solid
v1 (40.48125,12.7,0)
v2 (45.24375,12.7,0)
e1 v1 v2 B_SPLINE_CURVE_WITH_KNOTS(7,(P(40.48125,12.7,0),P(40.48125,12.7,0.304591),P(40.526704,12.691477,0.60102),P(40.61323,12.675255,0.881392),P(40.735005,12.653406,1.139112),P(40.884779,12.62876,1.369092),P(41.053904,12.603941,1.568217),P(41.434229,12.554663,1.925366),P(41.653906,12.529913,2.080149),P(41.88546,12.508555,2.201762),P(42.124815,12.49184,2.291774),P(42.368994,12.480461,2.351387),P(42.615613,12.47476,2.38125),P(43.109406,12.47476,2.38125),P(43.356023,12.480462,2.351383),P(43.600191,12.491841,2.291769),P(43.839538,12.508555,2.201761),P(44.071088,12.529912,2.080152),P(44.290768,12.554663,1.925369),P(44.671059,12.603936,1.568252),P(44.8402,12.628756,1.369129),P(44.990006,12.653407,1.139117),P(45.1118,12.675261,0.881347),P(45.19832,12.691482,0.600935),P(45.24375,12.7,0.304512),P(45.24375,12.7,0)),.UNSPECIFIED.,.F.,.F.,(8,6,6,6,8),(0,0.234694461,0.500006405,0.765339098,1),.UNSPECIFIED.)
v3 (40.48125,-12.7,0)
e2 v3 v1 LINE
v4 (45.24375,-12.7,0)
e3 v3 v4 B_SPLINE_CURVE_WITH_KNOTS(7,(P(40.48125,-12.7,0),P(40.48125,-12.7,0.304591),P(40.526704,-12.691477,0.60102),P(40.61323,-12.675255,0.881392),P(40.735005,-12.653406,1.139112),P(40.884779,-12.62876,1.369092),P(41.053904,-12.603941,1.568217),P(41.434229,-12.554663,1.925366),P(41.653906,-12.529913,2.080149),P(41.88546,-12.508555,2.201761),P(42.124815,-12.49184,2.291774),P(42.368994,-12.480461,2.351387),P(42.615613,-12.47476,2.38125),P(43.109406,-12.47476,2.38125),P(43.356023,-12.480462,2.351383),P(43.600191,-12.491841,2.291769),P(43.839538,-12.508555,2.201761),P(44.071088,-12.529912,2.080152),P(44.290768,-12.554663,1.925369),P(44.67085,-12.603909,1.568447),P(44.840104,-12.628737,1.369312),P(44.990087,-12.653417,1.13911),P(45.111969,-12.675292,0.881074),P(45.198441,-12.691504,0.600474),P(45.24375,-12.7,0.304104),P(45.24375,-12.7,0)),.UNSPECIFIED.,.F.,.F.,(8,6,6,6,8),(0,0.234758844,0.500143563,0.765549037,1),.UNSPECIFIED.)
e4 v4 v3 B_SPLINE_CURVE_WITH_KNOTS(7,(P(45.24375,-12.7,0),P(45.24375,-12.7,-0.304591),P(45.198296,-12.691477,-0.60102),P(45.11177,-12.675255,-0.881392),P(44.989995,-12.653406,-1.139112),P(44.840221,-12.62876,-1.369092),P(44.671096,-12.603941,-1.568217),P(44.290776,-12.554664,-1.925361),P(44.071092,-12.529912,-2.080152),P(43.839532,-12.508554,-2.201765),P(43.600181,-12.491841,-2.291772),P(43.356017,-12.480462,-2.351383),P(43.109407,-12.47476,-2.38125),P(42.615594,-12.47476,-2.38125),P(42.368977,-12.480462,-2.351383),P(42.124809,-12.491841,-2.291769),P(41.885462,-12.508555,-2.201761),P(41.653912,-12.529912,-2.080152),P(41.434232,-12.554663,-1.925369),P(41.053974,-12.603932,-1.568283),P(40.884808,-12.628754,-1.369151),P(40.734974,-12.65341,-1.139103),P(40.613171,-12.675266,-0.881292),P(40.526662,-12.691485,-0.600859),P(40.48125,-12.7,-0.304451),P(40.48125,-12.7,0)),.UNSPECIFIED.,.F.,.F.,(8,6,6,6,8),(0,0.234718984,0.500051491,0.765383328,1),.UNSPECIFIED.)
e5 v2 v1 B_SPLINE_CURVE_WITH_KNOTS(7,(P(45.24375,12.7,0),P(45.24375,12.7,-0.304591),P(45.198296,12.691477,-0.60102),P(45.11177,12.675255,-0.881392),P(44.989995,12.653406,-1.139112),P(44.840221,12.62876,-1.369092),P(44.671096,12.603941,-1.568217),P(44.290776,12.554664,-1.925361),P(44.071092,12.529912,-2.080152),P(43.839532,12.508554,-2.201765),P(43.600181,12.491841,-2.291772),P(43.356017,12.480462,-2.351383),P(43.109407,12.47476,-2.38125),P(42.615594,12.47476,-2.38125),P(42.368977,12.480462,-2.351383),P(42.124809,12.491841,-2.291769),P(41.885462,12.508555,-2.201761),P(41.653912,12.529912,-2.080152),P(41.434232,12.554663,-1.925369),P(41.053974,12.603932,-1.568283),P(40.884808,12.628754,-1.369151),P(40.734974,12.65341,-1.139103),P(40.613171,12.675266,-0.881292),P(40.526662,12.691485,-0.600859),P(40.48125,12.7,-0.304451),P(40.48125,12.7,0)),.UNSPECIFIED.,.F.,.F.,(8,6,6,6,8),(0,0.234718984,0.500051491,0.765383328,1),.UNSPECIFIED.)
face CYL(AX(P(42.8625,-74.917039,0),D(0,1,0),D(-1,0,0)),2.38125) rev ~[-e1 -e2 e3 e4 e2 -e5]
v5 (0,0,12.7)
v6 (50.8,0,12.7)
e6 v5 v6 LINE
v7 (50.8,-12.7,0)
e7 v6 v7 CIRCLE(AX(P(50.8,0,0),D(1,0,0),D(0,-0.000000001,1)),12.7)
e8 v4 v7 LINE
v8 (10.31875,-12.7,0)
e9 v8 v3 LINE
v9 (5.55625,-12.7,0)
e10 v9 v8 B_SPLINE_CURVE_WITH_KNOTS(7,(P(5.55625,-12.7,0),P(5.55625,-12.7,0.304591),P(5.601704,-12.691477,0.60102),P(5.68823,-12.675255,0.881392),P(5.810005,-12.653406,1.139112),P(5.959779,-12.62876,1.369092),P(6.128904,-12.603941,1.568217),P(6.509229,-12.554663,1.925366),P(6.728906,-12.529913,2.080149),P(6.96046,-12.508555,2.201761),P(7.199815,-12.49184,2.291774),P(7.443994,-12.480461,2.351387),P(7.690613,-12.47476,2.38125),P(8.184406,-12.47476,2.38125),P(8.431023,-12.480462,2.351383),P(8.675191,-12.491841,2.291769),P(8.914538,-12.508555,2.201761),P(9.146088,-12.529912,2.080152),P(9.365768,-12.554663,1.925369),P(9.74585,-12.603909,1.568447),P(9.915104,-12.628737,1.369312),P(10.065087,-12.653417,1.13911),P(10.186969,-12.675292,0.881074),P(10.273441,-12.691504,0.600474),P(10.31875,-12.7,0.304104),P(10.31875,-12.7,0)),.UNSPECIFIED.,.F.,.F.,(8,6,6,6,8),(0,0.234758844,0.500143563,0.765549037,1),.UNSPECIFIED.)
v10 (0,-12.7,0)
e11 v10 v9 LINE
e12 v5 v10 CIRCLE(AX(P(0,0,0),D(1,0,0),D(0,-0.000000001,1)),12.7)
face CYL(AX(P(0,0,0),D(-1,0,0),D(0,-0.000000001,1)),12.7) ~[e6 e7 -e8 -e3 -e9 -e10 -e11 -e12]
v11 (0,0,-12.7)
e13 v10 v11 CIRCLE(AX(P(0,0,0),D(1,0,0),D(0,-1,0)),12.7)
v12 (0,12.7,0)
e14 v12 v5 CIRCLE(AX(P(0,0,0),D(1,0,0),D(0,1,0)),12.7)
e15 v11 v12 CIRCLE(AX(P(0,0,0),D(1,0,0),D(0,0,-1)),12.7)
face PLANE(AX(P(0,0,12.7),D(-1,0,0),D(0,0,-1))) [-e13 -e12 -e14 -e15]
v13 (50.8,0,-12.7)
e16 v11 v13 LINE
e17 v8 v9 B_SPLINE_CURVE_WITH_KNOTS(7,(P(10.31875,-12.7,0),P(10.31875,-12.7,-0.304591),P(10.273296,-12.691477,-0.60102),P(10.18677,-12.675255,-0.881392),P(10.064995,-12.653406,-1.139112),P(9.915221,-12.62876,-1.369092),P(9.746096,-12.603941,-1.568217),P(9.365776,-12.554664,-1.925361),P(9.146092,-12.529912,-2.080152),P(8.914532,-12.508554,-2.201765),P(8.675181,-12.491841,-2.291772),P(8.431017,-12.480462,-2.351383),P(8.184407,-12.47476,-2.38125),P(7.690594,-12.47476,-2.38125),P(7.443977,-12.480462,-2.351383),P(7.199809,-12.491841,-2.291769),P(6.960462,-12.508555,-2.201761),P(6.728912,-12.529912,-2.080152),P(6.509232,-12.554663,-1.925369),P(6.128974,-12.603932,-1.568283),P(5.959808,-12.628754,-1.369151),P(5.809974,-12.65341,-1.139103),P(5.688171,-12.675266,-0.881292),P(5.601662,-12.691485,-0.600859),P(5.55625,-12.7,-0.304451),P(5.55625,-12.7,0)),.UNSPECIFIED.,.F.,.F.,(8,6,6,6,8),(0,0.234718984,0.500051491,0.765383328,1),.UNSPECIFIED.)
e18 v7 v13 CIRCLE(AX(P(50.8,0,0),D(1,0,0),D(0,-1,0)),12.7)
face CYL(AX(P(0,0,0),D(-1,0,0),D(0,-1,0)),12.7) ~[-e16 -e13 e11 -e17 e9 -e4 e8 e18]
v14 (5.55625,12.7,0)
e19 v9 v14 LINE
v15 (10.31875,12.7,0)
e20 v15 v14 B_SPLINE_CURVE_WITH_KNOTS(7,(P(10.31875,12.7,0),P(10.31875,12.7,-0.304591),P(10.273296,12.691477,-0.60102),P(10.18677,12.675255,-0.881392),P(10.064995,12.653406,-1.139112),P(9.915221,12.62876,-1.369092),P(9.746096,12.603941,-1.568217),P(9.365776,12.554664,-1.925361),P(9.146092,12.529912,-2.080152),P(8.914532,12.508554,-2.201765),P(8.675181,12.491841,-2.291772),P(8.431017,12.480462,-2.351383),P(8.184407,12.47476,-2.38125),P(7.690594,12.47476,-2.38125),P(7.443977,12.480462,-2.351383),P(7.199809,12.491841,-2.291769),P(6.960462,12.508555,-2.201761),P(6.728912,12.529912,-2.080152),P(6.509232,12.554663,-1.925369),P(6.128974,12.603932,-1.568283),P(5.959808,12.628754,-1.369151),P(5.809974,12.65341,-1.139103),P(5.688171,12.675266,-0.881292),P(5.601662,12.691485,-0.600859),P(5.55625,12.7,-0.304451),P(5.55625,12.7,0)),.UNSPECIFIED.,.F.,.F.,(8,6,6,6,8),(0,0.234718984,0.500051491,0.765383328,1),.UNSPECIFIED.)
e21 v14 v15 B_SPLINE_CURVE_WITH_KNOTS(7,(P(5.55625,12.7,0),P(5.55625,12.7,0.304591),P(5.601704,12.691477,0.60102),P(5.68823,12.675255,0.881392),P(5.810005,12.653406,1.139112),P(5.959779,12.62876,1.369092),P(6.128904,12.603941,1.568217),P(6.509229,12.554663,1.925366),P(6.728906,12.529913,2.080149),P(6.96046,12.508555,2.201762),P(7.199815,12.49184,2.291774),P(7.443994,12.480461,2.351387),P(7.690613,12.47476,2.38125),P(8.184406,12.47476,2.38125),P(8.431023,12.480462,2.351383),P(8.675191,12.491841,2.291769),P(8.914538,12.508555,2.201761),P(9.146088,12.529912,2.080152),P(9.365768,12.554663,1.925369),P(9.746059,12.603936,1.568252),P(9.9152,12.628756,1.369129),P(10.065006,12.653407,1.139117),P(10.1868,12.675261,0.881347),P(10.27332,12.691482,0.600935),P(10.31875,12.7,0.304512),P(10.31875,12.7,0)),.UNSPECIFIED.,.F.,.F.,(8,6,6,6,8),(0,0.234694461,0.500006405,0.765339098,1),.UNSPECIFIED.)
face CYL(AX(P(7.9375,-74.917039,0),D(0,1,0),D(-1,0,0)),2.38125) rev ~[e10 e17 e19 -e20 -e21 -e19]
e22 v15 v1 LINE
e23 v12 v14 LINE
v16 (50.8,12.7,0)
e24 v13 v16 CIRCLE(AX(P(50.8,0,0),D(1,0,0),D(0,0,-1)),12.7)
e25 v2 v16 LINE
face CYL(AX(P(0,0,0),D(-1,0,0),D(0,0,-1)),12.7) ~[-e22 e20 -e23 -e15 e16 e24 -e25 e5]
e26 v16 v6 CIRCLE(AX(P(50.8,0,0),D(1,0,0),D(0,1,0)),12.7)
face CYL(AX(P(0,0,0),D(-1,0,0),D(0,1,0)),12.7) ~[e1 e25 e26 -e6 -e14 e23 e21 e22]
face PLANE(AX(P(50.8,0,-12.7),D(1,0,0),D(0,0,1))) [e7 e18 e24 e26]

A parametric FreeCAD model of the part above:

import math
import FreeCAD as App
import Part
import Sketcher

V = App.Vector
Q = App.Units.Quantity


def add_polygon(sketch, points):
    """Adds a closed chain of lines whose ends are joined by coincident constraints."""
    first, n = sketch.GeometryCount, len(points)
    for a, b in zip(points, points[1:] + points[:1]):
        sketch.addGeometry(Part.LineSegment(App.Vector(*a, 0), App.Vector(*b, 0)), False)
    for i in range(n):
        sketch.addConstraint(Sketcher.Constraint("Coincident", first + i, 2, first + (i + 1) % n, 1))

doc = App.newDocument("Part")
body = doc.addObject("PartDesign::Body", "Body")

# Sketch on XZ plane
sketch1 = body.newObject("Sketcher::SketchObject", "Sketch")
sketch1.AttachmentSupport = (doc.getObject("XZ_Plane"), [""])
sketch1.MapMode = "FlatFace"
add_polygon(sketch1, [(0, -13), (51, -13), (51, 13), (0, 13)])  # lines 0-3
sketch1.addConstraint(Sketcher.Constraint("Horizontal", 0))
sketch1.addConstraint(Sketcher.Constraint("Vertical", 1))
sketch1.addConstraint(Sketcher.Constraint("Horizontal", 2))
sketch1.addConstraint(Sketcher.Constraint("Vertical", 3))
sketch1.addConstraint(Sketcher.Constraint("Symmetric", 2, 2, 3, 2, -1, 1))
sketch1.addConstraint(Sketcher.Constraint("DistanceX", 0, 1, 0, 2, Q("2 in")))
sketch1.addConstraint(Sketcher.Constraint("DistanceY", 1, 1, 1, 2, Q("1 in")))
pad1 = body.newObject("PartDesign::Pad", "Pad")
pad1.Profile = sketch1
pad1.Length = Q("1 in")
pad1.Midplane = True

# Sketch on XZ plane
sketch2 = body.newObject("Sketcher::SketchObject", "Sketch001")
sketch2.AttachmentSupport = (doc.getObject("XZ_Plane"), [""])
sketch2.MapMode = "FlatFace"
sketch2.AttachmentOffset = App.Placement(V(0, 0, 0.5 * 25.4), App.Rotation())
sketch2.addGeometry(Part.Circle(V(7.9, 0, 0), V(0, 0, 1), 2.4), False)
sketch2.addGeometry(Part.Circle(V(42.9, 0, 0), V(0, 0, 1), 2.4), False)
sketch2.addConstraint(Sketcher.Constraint("Equal", 0, 1))
sketch2.addConstraint(Sketcher.Constraint("PointOnObject", 0, 3, -1))
sketch2.addConstraint(Sketcher.Constraint("PointOnObject", 1, 3, -1))
sketch2.addConstraint(Sketcher.Constraint("Diameter", 0, Q("0.1875 in")))
sketch2.addConstraint(Sketcher.Constraint("DistanceX", -1, 1, 0, 3, Q("0.3125 in")))
sketch2.addConstraint(Sketcher.Constraint("DistanceX", -1, 1, 1, 3, Q("1.6875 in")))
doc.recompute()
hole = body.newObject("PartDesign::Hole", "Hole")
hole.Profile = sketch2
hole.ThreadType = "None"
hole.Diameter = Q("0.1875 in")
hole.DepthType = "ThroughAll"

# Sketch on YZ plane
sketch3 = body.newObject("Sketcher::SketchObject", "Sketch002")
sketch3.AttachmentSupport = (doc.getObject("YZ_Plane"), [""])
sketch3.MapMode = "FlatFace"
sketch3.addGeometry(Part.LineSegment(V(-13, -13, 0), V(-13, 0, 0)), False)
sketch3.addGeometry(Part.ArcOfCircle(Part.Circle(V(0, 0, 0), V(0, 0, 1), 13), math.radians(180), math.radians(270)), False)
sketch3.addGeometry(Part.LineSegment(V(0, -13, 0), V(-13, -13, 0)), False)
sketch3.addGeometry(Part.LineSegment(V(13, -13, 0), V(0, -13, 0)), False)
sketch3.addGeometry(Part.ArcOfCircle(Part.Circle(V(0, 0, 0), V(0, 0, 1), 13), math.radians(-90), math.radians(0)), False)
sketch3.addGeometry(Part.LineSegment(V(13, 0, 0), V(13, -13, 0)), False)
sketch3.addGeometry(Part.ArcOfCircle(Part.Circle(V(0, 0, 0), V(0, 0, 1), 13), math.radians(0), math.radians(90)), False)
sketch3.addGeometry(Part.LineSegment(V(0, 13, 0), V(13, 13, 0)), False)
sketch3.addGeometry(Part.LineSegment(V(13, 13, 0), V(13, 0, 0)), False)
sketch3.addGeometry(Part.ArcOfCircle(Part.Circle(V(0, 0, 0), V(0, 0, 1), 13), math.radians(90), math.radians(180)), False)
sketch3.addGeometry(Part.LineSegment(V(-13, 0, 0), V(-13, 13, 0)), False)
sketch3.addGeometry(Part.LineSegment(V(-13, 13, 0), V(0, 13, 0)), False)
sketch3.addConstraint(Sketcher.Constraint("Tangent", 0, 2, 1, 1))
sketch3.addConstraint(Sketcher.Constraint("Tangent", 1, 2, 2, 1))
sketch3.addConstraint(Sketcher.Constraint("Coincident", 2, 2, 0, 1))
sketch3.addConstraint(Sketcher.Constraint("Tangent", 3, 2, 4, 1))
sketch3.addConstraint(Sketcher.Constraint("Tangent", 4, 2, 5, 1))
sketch3.addConstraint(Sketcher.Constraint("Coincident", 5, 2, 3, 1))
sketch3.addConstraint(Sketcher.Constraint("Tangent", 6, 2, 7, 1))
sketch3.addConstraint(Sketcher.Constraint("Coincident", 7, 2, 8, 1))
sketch3.addConstraint(Sketcher.Constraint("Tangent", 8, 2, 6, 1))
sketch3.addConstraint(Sketcher.Constraint("Tangent", 9, 2, 10, 1))
sketch3.addConstraint(Sketcher.Constraint("Coincident", 10, 2, 11, 1))
sketch3.addConstraint(Sketcher.Constraint("Tangent", 11, 2, 9, 1))
sketch3.addConstraint(Sketcher.Constraint("Vertical", 0))
sketch3.addConstraint(Sketcher.Constraint("Horizontal", 2))
sketch3.addConstraint(Sketcher.Constraint("Horizontal", 3))
sketch3.addConstraint(Sketcher.Constraint("Vertical", 5))
sketch3.addConstraint(Sketcher.Constraint("Horizontal", 7))
sketch3.addConstraint(Sketcher.Constraint("Vertical", 8))
sketch3.addConstraint(Sketcher.Constraint("Vertical", 10))
sketch3.addConstraint(Sketcher.Constraint("Horizontal", 11))
sketch3.addConstraint(Sketcher.Constraint("Coincident", 1, 3, -1, 1))
sketch3.addConstraint(Sketcher.Constraint("Coincident", 4, 3, -1, 1))
sketch3.addConstraint(Sketcher.Constraint("Coincident", 6, 3, -1, 1))
sketch3.addConstraint(Sketcher.Constraint("Coincident", 9, 3, -1, 1))
sketch3.addConstraint(Sketcher.Constraint("Equal", 1, 4))
sketch3.addConstraint(Sketcher.Constraint("Equal", 4, 6))
sketch3.addConstraint(Sketcher.Constraint("Equal", 6, 9))
sketch3.addConstraint(Sketcher.Constraint("Radius", 1, Q("0.5 in")))
pocket1 = body.newObject("PartDesign::Pocket", "Pocket")
pocket1.Profile = sketch3
pocket1.Length = Q("2 in")
pocket1.Reversed = True

doc.recompute()
